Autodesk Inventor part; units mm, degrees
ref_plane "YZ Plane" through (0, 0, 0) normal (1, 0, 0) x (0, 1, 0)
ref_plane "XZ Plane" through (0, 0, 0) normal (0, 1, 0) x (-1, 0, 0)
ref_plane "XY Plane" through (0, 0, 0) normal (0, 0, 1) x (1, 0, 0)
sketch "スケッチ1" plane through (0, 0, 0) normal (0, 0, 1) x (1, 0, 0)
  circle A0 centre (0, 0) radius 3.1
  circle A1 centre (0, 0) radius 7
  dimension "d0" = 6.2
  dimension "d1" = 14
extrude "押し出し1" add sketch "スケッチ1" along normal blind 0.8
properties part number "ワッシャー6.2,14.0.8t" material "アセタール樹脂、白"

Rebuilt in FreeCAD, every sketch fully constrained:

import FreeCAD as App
import Part
import Sketcher

doc = App.newDocument("Part")
body = doc.addObject("PartDesign::Body", "Body")

# Sketch on XY plane
sketch1 = body.newObject("Sketcher::SketchObject", "Sketch")
sketch1.AttachmentSupport = (doc.getObject("XY_Plane"), [""])
sketch1.MapMode = "FlatFace"
sketch1.addGeometry([
    Part.Circle(App.Vector(0, 0, 0), App.Vector(0, 0, 1), 7),
    Part.Circle(App.Vector(0, 0, 0), App.Vector(0, 0, 1), 3.1),
], False)
sketch1.addConstraint([
    Sketcher.Constraint("Coincident", 0, 3, -1, 1),
    Sketcher.Constraint("Coincident", 1, 3, -1, 1),
    Sketcher.Constraint("Diameter", 0, 14.0),
    Sketcher.Constraint("Diameter", 1, 6.2),
])
pad1 = body.newObject("PartDesign::Pad", "Pad")
pad1.Profile = sketch1
pad1.Length = 0.8

doc.recompute()
